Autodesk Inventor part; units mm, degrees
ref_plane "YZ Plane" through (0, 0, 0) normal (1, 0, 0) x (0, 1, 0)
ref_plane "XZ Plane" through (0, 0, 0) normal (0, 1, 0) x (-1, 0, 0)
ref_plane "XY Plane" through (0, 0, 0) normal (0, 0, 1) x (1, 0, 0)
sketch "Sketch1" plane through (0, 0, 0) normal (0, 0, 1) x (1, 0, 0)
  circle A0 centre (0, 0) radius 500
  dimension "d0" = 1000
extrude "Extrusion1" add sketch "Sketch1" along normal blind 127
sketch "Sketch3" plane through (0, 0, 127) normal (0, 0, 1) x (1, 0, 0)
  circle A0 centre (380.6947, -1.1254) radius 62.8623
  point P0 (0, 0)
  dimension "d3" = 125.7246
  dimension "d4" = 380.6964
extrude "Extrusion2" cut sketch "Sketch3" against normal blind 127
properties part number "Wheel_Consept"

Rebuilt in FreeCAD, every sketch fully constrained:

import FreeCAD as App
import Part
import Sketcher

V = App.Vector
Q = App.Units.Quantity

doc = App.newDocument("Part")
body = doc.addObject("PartDesign::Body", "Body")

sketch1 = doc.addObject("Sketcher::SketchObject", "Sketch")
body.addObject(sketch1)
sketch1.AttachmentSupport = (doc.XY_Plane, [""])
sketch1.MapMode = "FlatFace"
sketch1.addGeometry(Part.Circle(V(0, 0, 0), V(0, 0, 1), 500), False)
sketch1.addConstraint([
    Sketcher.Constraint("Coincident", 0, 3, -1, 1),
    Sketcher.Constraint("Diameter", 0, Q("1000 mm")),
])
pad1 = doc.addObject("PartDesign::Pad", "Pad")
body.addObject(pad1)
pad1.Profile = sketch1
pad1.Length = 127

sketch2 = doc.addObject("Sketcher::SketchObject", "Sketch001")
body.addObject(sketch2)
sketch2.AttachmentSupport = (doc.XY_Plane, [""])
sketch2.MapMode = "FlatFace"
sketch2.AttachmentOffset = App.Placement(V(0, 0, 127), App.Rotation())
sketch2.addGeometry(Part.Circle(V(380.6947, -1.1254, 0), V(0, 0, 1), 62.8623), False)
sketch2.addConstraint([
    Sketcher.Constraint("Diameter", 0, Q("125.7246 mm")),
    Sketcher.Constraint("DistanceX", -1, 1, 0, 3, Q("380.6947 mm")),
    Sketcher.Constraint("DistanceY", 0, 3, -1, 1, Q("1.1254 mm")),
])
pocket1 = doc.addObject("PartDesign::Pocket", "Pocket")
body.addObject(pocket1)
pocket1.Profile = sketch2
pocket1.Length = 127

doc.recompute()
